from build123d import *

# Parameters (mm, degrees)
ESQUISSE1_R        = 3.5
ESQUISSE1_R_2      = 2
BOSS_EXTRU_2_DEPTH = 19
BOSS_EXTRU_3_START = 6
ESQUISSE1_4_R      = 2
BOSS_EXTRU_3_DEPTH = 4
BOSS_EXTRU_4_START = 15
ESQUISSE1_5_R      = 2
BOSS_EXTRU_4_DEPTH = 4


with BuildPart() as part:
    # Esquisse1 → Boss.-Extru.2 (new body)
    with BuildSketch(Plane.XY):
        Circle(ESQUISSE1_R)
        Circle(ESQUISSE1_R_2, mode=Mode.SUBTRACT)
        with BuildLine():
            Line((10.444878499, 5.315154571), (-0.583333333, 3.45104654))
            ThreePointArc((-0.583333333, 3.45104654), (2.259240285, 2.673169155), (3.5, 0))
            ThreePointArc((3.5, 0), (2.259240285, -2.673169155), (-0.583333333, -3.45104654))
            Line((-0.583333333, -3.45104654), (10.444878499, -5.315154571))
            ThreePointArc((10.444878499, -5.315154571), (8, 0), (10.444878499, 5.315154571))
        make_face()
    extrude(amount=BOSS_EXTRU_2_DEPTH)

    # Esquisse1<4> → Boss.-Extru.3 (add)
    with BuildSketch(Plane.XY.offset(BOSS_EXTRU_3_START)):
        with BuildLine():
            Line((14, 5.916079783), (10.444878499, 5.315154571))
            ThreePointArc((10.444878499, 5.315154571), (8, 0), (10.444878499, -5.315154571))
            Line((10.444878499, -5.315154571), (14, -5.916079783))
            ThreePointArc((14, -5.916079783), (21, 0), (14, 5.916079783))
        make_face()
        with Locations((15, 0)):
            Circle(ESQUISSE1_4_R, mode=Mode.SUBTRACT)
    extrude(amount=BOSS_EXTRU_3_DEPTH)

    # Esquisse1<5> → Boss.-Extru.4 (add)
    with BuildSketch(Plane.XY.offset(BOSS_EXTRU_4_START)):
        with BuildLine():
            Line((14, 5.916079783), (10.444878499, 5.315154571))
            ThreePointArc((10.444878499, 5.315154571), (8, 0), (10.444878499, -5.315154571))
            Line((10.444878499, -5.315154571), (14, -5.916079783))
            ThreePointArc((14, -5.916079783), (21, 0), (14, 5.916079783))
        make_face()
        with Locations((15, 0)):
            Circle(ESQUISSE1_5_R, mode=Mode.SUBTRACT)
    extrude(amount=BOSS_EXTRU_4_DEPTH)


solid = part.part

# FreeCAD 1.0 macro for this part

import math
import FreeCAD as App
import Part
import Sketcher
from FreeCAD import Vector
Q = App.Units.Quantity

doc = App.newDocument("Part")
body = doc.addObject("PartDesign::Body", "Body")

sketch1 = body.newObject("Sketcher::SketchObject", "Sketch")
sketch1.AttachmentSupport = (doc.getObject("XY_Plane"), [""])
sketch1.MapMode = "FlatFace"
sketch1.addGeometry([
    Part.ArcOfCircle(Part.Circle(Vector(0, 0, 0), Vector(0, 0, 1), 3.5), math.radians(100), math.radians(260)),
    Part.LineSegment(Vector(-0.6, -3.5, 0), Vector(10.4, -5.3, 0)),
    Part.ArcOfCircle(Part.Circle(Vector(15, 0, 0), Vector(0, 0, 1), 7), math.radians(131), math.radians(229)),
    Part.LineSegment(Vector(10.4, 5.3, 0), Vector(-0.6, 3.5, 0)),
    Part.Circle(Vector(0, 0, 0), Vector(0, 0, 1), 2),
], False)
sketch1.addConstraint([
    Sketcher.Constraint("Tangent", 0, 2, 1, 1),
    Sketcher.Constraint("Coincident", 1, 2, 2, 2),
    Sketcher.Constraint("Coincident", 2, 1, 3, 1),
    Sketcher.Constraint("Tangent", 3, 2, 0, 1),
    Sketcher.Constraint("Coincident", 0, 3, -1, 1),
    Sketcher.Constraint("Coincident", 4, 3, -1, 1),
    Sketcher.Constraint("Symmetric", 1, 2, 2, 1, -1),
    Sketcher.Constraint("Diameter", 4, Q("4 mm")),
    Sketcher.Constraint("Radius", 2, Q("7 mm")),
    Sketcher.Constraint("Radius", 0, Q("3.5 mm")),
    Sketcher.Constraint("DistanceX", -1, 1, 2, 3, Q("15 mm")),
    Sketcher.Constraint("DistanceY", 0, 2, 2, 1, Q("8.766201 mm")),
])
pad1 = body.newObject("PartDesign::Pad", "Pad")
pad1.Profile = sketch1
pad1.Length = 19

sketch2 = body.newObject("Sketcher::SketchObject", "Sketch001")
sketch2.AttachmentSupport = (doc.getObject("XY_Plane"), [""])
sketch2.MapMode = "FlatFace"
sketch2.AttachmentOffset = App.Placement(Vector(0, 0, 6), App.Rotation())
sketch2.addGeometry([
    Part.LineSegment(Vector(14, 5.9, 0), Vector(10.4, 5.3, 0)),
    Part.ArcOfCircle(Part.Circle(Vector(15, 0, 0), Vector(0, 0, 1), 7), math.radians(131), math.radians(229)),
    Part.LineSegment(Vector(10.4, -5.3, 0), Vector(14, -5.9, 0)),
    Part.ArcOfCircle(Part.Circle(Vector(15, 0, 0), Vector(0, 0, 1), 6), math.radians(-100), math.radians(100)),
    Part.Circle(Vector(15, 0, 0), Vector(0, 0, 1), 2),
], False)
sketch2.addConstraint([
    Sketcher.Constraint("Coincident", 0, 2, 1, 1),
    Sketcher.Constraint("Coincident", 1, 2, 2, 1),
    Sketcher.Constraint("Tangent", 2, 2, 3, 1),
    Sketcher.Constraint("Tangent", 3, 2, 0, 1),
    Sketcher.Constraint("Coincident", 3, 3, 1, 3),
    Sketcher.Constraint("Coincident", 4, 3, 1, 3),
    Sketcher.Constraint("Symmetric", 0, 2, 1, 2, -1),
    Sketcher.Constraint("Diameter", 4, Q("4 mm")),
    Sketcher.Constraint("Radius", 1, Q("7 mm")),
    Sketcher.Constraint("Radius", 3, Q("6 mm")),
    Sketcher.Constraint("DistanceX", -1, 1, 1, 3, Q("15 mm")),
    Sketcher.Constraint("DistanceX", -1, 1, 2, 2, Q("14 mm")),
])
pad2 = body.newObject("PartDesign::Pad", "Pad001")
pad2.Profile = sketch2
pad2.Length = 4

sketch3 = body.newObject("Sketcher::SketchObject", "Sketch002")
sketch3.AttachmentSupport = (doc.getObject("XY_Plane"), [""])
sketch3.MapMode = "FlatFace"
sketch3.AttachmentOffset = App.Placement(Vector(0, 0, 15), App.Rotation())
sketch3.addGeometry([
    Part.LineSegment(Vector(14, 5.9, 0), Vector(10.4, 5.3, 0)),
    Part.ArcOfCircle(Part.Circle(Vector(15, 0, 0), Vector(0, 0, 1), 7), math.radians(131), math.radians(229)),
    Part.LineSegment(Vector(10.4, -5.3, 0), Vector(14, -5.9, 0)),
    Part.ArcOfCircle(Part.Circle(Vector(15, 0, 0), Vector(0, 0, 1), 6), math.radians(-100), math.radians(100)),
    Part.Circle(Vector(15, 0, 0), Vector(0, 0, 1), 2),
], False)
sketch3.addConstraint([
    Sketcher.Constraint("Coincident", 0, 2, 1, 1),
    Sketcher.Constraint("Coincident", 1, 2, 2, 1),
    Sketcher.Constraint("Tangent", 2, 2, 3, 1),
    Sketcher.Constraint("Tangent", 3, 2, 0, 1),
    Sketcher.Constraint("Coincident", 3, 3, 1, 3),
    Sketcher.Constraint("Coincident", 4, 3, 1, 3),
    Sketcher.Constraint("Symmetric", 0, 2, 1, 2, -1),
    Sketcher.Constraint("Diameter", 4, Q("4 mm")),
    Sketcher.Constraint("Radius", 1, Q("7 mm")),
    Sketcher.Constraint("Radius", 3, Q("6 mm")),
    Sketcher.Constraint("DistanceX", -1, 1, 1, 3, Q("15 mm")),
    Sketcher.Constraint("DistanceX", -1, 1, 2, 2, Q("14 mm")),
])
pad3 = body.newObject("PartDesign::Pad", "Pad002")
pad3.Profile = sketch3
pad3.Length = 4

doc.recompute()
